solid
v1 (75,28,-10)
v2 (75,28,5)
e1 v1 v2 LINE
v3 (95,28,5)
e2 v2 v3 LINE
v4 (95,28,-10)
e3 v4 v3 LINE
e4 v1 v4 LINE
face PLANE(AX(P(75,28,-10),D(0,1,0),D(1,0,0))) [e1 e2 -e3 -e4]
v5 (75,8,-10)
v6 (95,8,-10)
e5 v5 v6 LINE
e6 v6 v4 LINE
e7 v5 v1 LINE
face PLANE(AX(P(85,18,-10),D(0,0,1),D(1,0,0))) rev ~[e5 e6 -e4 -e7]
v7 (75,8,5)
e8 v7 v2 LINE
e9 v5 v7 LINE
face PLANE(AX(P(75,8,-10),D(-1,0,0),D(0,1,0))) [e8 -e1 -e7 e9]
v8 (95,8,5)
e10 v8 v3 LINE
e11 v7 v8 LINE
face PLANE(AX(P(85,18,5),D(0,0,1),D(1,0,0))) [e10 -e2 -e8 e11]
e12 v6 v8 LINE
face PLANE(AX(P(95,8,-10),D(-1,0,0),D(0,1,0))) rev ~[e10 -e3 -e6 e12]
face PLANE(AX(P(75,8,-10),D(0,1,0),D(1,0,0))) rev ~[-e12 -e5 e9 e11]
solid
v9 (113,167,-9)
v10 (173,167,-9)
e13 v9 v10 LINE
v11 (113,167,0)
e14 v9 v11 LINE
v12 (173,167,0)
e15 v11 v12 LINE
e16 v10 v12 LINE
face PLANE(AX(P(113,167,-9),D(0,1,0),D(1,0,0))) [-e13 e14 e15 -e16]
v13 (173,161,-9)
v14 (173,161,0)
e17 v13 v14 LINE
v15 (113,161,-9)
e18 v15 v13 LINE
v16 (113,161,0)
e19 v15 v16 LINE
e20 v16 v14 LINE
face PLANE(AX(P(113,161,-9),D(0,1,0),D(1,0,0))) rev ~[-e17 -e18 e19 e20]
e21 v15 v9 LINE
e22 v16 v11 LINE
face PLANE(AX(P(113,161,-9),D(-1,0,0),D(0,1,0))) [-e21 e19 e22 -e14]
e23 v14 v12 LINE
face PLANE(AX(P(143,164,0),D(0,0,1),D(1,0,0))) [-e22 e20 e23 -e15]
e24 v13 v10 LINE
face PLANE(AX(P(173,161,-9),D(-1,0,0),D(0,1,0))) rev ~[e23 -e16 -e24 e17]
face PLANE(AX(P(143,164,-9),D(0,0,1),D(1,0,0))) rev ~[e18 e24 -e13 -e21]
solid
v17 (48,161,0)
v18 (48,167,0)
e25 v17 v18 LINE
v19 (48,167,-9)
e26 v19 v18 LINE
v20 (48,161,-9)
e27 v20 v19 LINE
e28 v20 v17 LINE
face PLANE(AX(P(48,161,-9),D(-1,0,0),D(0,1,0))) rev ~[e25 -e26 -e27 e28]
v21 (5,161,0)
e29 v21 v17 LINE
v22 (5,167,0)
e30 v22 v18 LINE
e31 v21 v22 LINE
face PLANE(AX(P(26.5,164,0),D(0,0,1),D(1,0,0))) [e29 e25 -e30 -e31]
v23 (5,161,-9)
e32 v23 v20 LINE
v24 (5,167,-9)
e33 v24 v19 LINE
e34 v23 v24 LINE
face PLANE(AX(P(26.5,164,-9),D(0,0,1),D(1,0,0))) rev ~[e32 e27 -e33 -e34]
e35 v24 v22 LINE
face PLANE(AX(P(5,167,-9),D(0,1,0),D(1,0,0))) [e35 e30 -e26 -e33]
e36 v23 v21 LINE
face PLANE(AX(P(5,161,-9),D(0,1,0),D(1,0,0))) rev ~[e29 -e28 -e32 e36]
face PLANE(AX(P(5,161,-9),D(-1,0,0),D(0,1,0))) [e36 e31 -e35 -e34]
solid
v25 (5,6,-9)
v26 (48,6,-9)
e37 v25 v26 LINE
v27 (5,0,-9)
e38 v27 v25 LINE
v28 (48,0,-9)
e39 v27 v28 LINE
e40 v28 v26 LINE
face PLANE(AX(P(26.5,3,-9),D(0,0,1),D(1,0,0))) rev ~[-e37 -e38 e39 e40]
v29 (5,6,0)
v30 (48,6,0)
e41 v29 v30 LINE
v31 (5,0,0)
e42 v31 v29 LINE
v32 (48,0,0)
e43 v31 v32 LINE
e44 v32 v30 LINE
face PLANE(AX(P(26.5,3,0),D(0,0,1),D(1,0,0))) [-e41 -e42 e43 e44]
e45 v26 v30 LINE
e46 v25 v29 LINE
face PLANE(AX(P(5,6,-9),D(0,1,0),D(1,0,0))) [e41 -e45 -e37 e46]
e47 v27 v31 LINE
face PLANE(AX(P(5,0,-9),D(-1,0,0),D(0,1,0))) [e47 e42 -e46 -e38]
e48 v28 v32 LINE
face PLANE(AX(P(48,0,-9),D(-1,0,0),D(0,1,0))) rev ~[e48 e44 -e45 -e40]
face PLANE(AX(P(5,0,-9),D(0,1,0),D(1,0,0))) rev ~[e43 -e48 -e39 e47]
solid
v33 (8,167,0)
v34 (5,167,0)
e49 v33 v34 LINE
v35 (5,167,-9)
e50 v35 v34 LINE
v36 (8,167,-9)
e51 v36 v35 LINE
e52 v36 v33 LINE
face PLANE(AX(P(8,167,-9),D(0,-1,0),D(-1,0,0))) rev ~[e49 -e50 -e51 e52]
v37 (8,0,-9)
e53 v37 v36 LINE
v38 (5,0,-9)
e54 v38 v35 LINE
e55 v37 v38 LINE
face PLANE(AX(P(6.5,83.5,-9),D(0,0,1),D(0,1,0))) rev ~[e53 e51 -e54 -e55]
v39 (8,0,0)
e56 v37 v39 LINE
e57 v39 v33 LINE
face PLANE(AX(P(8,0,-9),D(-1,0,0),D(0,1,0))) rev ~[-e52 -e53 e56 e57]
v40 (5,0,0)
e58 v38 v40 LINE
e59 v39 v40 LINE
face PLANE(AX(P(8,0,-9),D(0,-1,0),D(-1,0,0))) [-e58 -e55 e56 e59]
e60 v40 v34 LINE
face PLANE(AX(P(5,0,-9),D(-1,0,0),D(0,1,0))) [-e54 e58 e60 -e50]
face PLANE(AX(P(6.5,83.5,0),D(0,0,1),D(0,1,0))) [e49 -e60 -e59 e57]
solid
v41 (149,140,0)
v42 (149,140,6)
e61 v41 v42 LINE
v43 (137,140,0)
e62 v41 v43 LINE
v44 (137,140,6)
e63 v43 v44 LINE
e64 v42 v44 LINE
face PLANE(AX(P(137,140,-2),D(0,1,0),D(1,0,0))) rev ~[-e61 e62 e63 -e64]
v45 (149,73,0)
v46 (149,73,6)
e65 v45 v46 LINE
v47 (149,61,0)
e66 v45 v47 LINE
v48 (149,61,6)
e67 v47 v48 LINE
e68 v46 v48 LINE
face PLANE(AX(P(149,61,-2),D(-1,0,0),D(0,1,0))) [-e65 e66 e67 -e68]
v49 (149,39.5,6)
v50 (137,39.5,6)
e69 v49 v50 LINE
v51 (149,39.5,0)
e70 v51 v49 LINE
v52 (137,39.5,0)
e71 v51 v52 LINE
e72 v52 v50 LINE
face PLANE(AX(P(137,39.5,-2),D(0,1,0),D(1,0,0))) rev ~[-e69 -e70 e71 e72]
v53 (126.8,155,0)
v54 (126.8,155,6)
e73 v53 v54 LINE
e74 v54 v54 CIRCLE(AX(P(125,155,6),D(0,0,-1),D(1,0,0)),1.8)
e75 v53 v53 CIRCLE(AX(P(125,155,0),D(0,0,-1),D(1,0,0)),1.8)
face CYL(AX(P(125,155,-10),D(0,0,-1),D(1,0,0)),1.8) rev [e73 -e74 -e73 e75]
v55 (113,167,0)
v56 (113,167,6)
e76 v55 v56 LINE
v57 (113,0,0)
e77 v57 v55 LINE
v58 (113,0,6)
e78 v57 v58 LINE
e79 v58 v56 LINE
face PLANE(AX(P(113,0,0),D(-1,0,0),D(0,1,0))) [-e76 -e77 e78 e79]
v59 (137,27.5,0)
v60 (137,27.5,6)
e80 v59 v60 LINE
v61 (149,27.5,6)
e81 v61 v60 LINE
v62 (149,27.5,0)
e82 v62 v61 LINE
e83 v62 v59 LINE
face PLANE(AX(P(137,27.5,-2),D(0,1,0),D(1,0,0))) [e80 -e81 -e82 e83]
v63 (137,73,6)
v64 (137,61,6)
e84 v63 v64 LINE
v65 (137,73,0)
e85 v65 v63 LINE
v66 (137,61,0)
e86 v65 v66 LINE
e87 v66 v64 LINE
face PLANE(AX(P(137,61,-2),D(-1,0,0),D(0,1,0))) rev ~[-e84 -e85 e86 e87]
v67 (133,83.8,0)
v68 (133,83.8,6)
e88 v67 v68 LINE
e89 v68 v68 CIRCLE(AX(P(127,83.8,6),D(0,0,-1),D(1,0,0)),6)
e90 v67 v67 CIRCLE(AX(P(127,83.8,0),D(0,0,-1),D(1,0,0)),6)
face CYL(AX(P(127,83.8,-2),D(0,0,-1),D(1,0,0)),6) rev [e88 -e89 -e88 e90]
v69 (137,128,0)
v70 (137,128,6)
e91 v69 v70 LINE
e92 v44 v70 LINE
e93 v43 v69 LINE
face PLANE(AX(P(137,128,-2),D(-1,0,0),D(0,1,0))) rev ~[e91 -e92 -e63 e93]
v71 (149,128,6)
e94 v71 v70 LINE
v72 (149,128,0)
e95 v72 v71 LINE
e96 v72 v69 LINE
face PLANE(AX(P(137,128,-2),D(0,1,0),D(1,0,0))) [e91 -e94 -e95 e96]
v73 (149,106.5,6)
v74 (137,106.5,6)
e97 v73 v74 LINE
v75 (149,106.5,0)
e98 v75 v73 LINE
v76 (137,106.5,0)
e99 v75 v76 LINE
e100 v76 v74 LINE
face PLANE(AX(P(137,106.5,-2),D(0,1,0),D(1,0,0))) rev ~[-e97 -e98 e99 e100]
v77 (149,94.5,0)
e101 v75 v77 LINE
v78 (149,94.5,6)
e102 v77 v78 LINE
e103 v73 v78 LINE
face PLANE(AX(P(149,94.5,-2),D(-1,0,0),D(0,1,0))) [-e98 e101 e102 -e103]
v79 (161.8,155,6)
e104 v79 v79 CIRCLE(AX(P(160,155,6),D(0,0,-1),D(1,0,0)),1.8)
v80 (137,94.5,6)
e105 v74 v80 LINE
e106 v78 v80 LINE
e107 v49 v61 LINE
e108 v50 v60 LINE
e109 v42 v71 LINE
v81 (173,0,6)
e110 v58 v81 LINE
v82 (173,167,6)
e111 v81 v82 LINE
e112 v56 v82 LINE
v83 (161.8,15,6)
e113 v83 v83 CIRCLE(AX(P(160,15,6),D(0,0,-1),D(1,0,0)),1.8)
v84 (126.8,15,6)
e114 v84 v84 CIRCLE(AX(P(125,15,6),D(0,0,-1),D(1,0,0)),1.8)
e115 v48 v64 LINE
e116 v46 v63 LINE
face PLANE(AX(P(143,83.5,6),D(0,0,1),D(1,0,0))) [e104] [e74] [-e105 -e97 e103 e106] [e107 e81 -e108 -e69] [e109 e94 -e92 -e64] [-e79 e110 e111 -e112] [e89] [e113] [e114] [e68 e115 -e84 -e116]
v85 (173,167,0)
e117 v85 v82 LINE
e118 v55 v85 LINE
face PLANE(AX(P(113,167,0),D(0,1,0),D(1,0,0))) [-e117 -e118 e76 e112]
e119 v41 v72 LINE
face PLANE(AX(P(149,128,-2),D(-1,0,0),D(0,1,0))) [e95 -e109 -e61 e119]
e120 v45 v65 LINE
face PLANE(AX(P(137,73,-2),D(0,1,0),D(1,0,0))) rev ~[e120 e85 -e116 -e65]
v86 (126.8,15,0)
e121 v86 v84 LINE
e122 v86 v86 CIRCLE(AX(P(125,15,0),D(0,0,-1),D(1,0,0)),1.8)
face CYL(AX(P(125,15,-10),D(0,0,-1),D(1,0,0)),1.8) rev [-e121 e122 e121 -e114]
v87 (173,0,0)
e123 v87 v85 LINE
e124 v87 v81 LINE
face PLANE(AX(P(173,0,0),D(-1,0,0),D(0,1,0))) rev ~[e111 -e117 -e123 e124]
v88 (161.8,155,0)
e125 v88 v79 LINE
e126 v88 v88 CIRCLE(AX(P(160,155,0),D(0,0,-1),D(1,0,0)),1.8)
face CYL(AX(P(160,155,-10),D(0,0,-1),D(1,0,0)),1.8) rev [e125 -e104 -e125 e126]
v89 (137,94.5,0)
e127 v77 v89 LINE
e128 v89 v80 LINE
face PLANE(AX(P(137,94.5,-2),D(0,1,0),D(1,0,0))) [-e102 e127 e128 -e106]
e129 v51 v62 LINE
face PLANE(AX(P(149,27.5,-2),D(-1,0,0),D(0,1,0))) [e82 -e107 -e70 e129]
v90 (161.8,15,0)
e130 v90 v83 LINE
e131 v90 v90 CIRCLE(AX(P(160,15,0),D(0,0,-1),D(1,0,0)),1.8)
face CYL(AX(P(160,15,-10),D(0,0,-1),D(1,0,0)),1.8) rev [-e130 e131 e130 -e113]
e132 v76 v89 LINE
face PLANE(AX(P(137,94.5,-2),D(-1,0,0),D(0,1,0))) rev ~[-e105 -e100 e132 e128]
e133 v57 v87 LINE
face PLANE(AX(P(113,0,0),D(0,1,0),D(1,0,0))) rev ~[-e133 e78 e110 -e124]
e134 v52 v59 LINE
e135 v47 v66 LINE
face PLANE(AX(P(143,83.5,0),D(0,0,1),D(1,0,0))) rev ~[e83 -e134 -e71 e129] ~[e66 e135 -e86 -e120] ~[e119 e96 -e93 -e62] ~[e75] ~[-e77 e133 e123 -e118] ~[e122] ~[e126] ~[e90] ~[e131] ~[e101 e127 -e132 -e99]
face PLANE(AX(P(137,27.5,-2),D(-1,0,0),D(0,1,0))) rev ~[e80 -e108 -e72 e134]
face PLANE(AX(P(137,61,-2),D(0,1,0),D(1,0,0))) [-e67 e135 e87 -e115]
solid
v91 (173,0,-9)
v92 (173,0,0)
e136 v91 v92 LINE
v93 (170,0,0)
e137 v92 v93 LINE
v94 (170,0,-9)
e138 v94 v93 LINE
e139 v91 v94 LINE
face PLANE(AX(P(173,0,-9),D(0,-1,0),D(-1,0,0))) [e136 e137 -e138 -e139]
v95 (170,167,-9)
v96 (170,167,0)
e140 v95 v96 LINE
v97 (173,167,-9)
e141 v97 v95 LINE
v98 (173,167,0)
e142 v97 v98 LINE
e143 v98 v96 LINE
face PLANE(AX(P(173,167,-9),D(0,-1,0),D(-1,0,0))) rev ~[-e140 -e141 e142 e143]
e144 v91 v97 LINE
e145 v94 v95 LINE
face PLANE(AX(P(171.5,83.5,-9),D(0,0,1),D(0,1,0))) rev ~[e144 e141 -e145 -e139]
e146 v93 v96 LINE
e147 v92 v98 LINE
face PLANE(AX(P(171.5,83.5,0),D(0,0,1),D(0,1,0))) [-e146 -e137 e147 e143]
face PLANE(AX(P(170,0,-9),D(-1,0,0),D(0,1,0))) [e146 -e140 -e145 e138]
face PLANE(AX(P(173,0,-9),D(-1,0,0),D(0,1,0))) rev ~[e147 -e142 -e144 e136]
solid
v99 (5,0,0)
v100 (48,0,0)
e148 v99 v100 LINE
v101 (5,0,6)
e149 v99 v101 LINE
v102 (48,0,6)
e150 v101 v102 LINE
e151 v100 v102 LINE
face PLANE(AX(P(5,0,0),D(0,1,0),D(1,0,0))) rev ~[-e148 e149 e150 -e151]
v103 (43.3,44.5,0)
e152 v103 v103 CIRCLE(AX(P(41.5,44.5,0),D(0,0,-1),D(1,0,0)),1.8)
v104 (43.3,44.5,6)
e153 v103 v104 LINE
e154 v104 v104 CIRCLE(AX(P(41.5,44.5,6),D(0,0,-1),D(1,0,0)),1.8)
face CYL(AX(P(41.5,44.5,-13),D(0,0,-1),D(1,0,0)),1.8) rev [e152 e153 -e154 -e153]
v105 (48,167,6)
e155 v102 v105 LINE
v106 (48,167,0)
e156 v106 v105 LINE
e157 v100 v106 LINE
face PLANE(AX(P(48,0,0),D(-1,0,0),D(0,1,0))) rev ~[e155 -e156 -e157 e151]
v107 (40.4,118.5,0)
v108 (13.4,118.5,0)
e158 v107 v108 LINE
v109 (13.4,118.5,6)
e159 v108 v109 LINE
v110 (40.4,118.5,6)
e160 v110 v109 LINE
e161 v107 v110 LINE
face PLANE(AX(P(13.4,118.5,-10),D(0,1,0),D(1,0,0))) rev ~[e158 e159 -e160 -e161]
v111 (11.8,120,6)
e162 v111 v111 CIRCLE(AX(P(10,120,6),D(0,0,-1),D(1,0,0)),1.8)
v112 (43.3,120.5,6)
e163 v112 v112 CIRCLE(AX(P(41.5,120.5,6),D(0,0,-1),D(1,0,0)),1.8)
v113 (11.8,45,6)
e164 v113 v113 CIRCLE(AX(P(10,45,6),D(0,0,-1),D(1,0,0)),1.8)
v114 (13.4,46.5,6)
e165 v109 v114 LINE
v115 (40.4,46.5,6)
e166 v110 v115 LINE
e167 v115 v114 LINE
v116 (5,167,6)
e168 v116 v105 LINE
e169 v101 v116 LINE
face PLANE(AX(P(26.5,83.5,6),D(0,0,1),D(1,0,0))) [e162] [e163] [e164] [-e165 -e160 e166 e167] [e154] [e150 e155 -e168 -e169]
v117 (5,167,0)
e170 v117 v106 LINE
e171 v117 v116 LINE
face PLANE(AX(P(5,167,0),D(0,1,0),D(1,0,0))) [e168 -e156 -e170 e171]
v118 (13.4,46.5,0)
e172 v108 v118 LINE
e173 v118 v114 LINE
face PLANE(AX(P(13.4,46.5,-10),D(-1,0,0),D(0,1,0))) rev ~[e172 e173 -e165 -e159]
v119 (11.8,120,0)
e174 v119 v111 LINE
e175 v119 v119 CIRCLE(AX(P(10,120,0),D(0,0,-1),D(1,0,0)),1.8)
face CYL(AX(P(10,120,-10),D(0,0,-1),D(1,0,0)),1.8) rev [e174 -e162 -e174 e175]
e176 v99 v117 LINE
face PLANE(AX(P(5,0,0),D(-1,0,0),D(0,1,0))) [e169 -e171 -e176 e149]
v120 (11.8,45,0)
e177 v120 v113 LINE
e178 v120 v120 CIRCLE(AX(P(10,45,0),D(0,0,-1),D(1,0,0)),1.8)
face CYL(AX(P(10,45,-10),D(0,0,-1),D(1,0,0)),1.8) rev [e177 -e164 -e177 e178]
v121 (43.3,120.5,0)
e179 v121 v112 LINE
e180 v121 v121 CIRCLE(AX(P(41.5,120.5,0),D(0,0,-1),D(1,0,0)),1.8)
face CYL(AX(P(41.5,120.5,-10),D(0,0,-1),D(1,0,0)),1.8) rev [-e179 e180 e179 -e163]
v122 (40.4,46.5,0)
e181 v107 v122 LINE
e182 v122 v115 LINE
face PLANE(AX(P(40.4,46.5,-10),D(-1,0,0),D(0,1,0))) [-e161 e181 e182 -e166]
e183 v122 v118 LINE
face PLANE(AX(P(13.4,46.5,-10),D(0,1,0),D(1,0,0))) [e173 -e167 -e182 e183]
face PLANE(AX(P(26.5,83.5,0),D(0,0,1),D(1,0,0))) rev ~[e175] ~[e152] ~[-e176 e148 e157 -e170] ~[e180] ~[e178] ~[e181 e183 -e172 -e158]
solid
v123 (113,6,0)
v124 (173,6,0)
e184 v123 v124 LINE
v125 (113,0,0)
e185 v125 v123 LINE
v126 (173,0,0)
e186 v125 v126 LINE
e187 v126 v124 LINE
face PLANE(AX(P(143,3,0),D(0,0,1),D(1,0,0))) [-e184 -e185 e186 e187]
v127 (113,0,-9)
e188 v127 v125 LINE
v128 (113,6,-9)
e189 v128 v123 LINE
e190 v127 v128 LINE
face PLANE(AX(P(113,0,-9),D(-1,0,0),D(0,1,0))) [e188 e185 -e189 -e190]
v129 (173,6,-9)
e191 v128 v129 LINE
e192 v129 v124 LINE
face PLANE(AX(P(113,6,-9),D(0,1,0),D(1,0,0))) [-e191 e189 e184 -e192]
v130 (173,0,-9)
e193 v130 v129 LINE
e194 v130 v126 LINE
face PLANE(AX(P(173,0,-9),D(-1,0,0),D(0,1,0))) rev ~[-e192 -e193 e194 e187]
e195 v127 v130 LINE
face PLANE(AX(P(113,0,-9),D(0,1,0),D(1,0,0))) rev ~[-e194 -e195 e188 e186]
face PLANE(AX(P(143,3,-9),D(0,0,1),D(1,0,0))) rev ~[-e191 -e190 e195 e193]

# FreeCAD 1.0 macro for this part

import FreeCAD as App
import Part
import Sketcher
Q = App.Units.Quantity

doc = App.newDocument("Part")
body = doc.addObject("PartDesign::Body", "Body")

# Sketch on XY plane
sketch1 = doc.addObject("Sketcher::SketchObject", "Sketch")
body.addObject(sketch1)
sketch1.AttachmentSupport = (doc.XY_Plane, [""])
sketch1.MapMode = "FlatFace"
sketch1.AttachmentOffset = App.Placement(App.Vector(0, 0, -9), App.Rotation())
sketch1.addGeometry([
    Part.LineSegment(App.Vector(5, 6, 0), App.Vector(5, 0, 0)),
    Part.LineSegment(App.Vector(5, 0, 0), App.Vector(48, 0, 0)),
    Part.LineSegment(App.Vector(48, 0, 0), App.Vector(48, 6, 0)),
    Part.LineSegment(App.Vector(48, 6, 0), App.Vector(5, 6, 0)),
], False)
sketch1.addConstraint([
    Sketcher.Constraint("Coincident", 0, 2, 1, 1),
    Sketcher.Constraint("Coincident", 1, 2, 2, 1),
    Sketcher.Constraint("Coincident", 2, 2, 3, 1),
    Sketcher.Constraint("Coincident", 3, 2, 0, 1),
    Sketcher.Constraint("Vertical", 0),
    Sketcher.Constraint("Horizontal", 1),
    Sketcher.Constraint("Vertical", 2),
    Sketcher.Constraint("Horizontal", 3),
    Sketcher.Constraint("PointOnObject", 0, 2, -1),
    Sketcher.Constraint("DistanceX", 1, 1, 1, 2, Q("43 mm")),
    Sketcher.Constraint("DistanceY", 0, 2, 0, 1, Q("6 mm")),
    Sketcher.Constraint("DistanceX", -1, 1, 0, 2, Q("5 mm")),
])
pad1 = doc.addObject("PartDesign::Pad", "Pad")
body.addObject(pad1)
pad1.Profile = sketch1
pad1.Length = 9
body2 = doc.addObject("PartDesign::Body", "Body001")

# Sketch on XY plane
sketch2 = doc.addObject("Sketcher::SketchObject", "Sketch001")
body2.addObject(sketch2)
sketch2.AttachmentSupport = (doc.getObject("XY_Plane001"), [""])
sketch2.MapMode = "FlatFace"
sketch2.AttachmentOffset = App.Placement(App.Vector(0, 0, -9), App.Rotation())
sketch2.addGeometry([
    Part.LineSegment(App.Vector(5, 167, 0), App.Vector(5, 161, 0)),
    Part.LineSegment(App.Vector(5, 161, 0), App.Vector(48, 161, 0)),
    Part.LineSegment(App.Vector(48, 161, 0), App.Vector(48, 167, 0)),
    Part.LineSegment(App.Vector(48, 167, 0), App.Vector(5, 167, 0)),
], False)
sketch2.addConstraint([
    Sketcher.Constraint("Coincident", 0, 2, 1, 1),
    Sketcher.Constraint("Coincident", 1, 2, 2, 1),
    Sketcher.Constraint("Coincident", 2, 2, 3, 1),
    Sketcher.Constraint("Coincident", 3, 2, 0, 1),
    Sketcher.Constraint("Vertical", 0),
    Sketcher.Constraint("Horizontal", 1),
    Sketcher.Constraint("Vertical", 2),
    Sketcher.Constraint("Horizontal", 3),
    Sketcher.Constraint("DistanceX", 1, 1, 1, 2, Q("43 mm")),
    Sketcher.Constraint("DistanceY", 0, 2, 0, 1, Q("6 mm")),
    Sketcher.Constraint("DistanceX", -1, 1, 0, 2, Q("5 mm")),
    Sketcher.Constraint("DistanceY", -1, 1, 0, 2, Q("161 mm")),
])
pad2 = doc.addObject("PartDesign::Pad", "Pad001")
body2.addObject(pad2)
pad2.Profile = sketch2
pad2.Length = 9
body3 = doc.addObject("PartDesign::Body", "Body002")

# Sketch on XY plane
sketch3 = doc.addObject("Sketcher::SketchObject", "Sketch002")
body3.addObject(sketch3)
sketch3.AttachmentSupport = (doc.getObject("XY_Plane002"), [""])
sketch3.MapMode = "FlatFace"
sketch3.AttachmentOffset = App.Placement(App.Vector(0, 0, -9), App.Rotation())
sketch3.addGeometry([
    Part.LineSegment(App.Vector(5, 0, 0), App.Vector(8, 0, 0)),
    Part.LineSegment(App.Vector(8, 0, 0), App.Vector(8, 167, 0)),
    Part.LineSegment(App.Vector(8, 167, 0), App.Vector(5, 167, 0)),
    Part.LineSegment(App.Vector(5, 167, 0), App.Vector(5, 0, 0)),
], False)
sketch3.addConstraint([
    Sketcher.Constraint("Coincident", 0, 2, 1, 1),
    Sketcher.Constraint("Coincident", 1, 2, 2, 1),
    Sketcher.Constraint("Coincident", 2, 2, 3, 1),
    Sketcher.Constraint("Coincident", 3, 2, 0, 1),
    Sketcher.Constraint("Horizontal", 0),
    Sketcher.Constraint("Vertical", 1),
    Sketcher.Constraint("Horizontal", 2),
    Sketcher.Constraint("Vertical", 3),
    Sketcher.Constraint("PointOnObject", 0, 2, -1),
    Sketcher.Constraint("DistanceX", 0, 1, 0, 2, Q("3 mm")),
    Sketcher.Constraint("DistanceY", 1, 1, 1, 2, Q("167 mm")),
    Sketcher.Constraint("DistanceX", -1, 1, 0, 2, Q("8 mm")),
])
pad3 = doc.addObject("PartDesign::Pad", "Pad002")
body3.addObject(pad3)
pad3.Profile = sketch3
pad3.Length = 9
body4 = doc.addObject("PartDesign::Body", "Body003")

# Sketch on XY plane
sketch4 = doc.addObject("Sketcher::SketchObject", "Sketch003")
body4.addObject(sketch4)
sketch4.AttachmentSupport = (doc.getObject("XY_Plane003"), [""])
sketch4.MapMode = "FlatFace"
sketch4.AttachmentOffset = App.Placement(App.Vector(0, 0, -9), App.Rotation())
sketch4.addGeometry([
    Part.LineSegment(App.Vector(113, 6, 0), App.Vector(113, 0, 0)),
    Part.LineSegment(App.Vector(113, 0, 0), App.Vector(173, 0, 0)),
    Part.LineSegment(App.Vector(173, 0, 0), App.Vector(173, 6, 0)),
    Part.LineSegment(App.Vector(173, 6, 0), App.Vector(113, 6, 0)),
], False)
sketch4.addConstraint([
    Sketcher.Constraint("Coincident", 0, 2, 1, 1),
    Sketcher.Constraint("Coincident", 1, 2, 2, 1),
    Sketcher.Constraint("Coincident", 2, 2, 3, 1),
    Sketcher.Constraint("Coincident", 3, 2, 0, 1),
    Sketcher.Constraint("Vertical", 0),
    Sketcher.Constraint("Horizontal", 1),
    Sketcher.Constraint("Vertical", 2),
    Sketcher.Constraint("Horizontal", 3),
    Sketcher.Constraint("PointOnObject", 0, 2, -1),
    Sketcher.Constraint("DistanceX", 1, 1, 1, 2, Q("60 mm")),
    Sketcher.Constraint("DistanceY", 0, 2, 0, 1, Q("6 mm")),
    Sketcher.Constraint("DistanceX", -1, 1, 0, 2, Q("113 mm")),
])
pad4 = doc.addObject("PartDesign::Pad", "Pad003")
body4.addObject(pad4)
pad4.Profile = sketch4
pad4.Length = 9
body5 = doc.addObject("PartDesign::Body", "Body004")

# Sketch on XY plane
sketch5 = doc.addObject("Sketcher::SketchObject", "Sketch004")
body5.addObject(sketch5)
sketch5.AttachmentSupport = (doc.getObject("XY_Plane004"), [""])
sketch5.MapMode = "FlatFace"
sketch5.AttachmentOffset = App.Placement(App.Vector(0, 0, -9), App.Rotation())
sketch5.addGeometry([
    Part.LineSegment(App.Vector(113, 167, 0), App.Vector(113, 161, 0)),
    Part.LineSegment(App.Vector(113, 161, 0), App.Vector(173, 161, 0)),
    Part.LineSegment(App.Vector(173, 161, 0), App.Vector(173, 167, 0)),
    Part.LineSegment(App.Vector(173, 167, 0), App.Vector(113, 167, 0)),
], False)
sketch5.addConstraint([
    Sketcher.Constraint("Coincident", 0, 2, 1, 1),
    Sketcher.Constraint("Coincident", 1, 2, 2, 1),
    Sketcher.Constraint("Coincident", 2, 2, 3, 1),
    Sketcher.Constraint("Coincident", 3, 2, 0, 1),
    Sketcher.Constraint("Vertical", 0),
    Sketcher.Constraint("Horizontal", 1),
    Sketcher.Constraint("Vertical", 2),
    Sketcher.Constraint("Horizontal", 3),
    Sketcher.Constraint("DistanceX", 1, 1, 1, 2, Q("60 mm")),
    Sketcher.Constraint("DistanceY", 0, 2, 0, 1, Q("6 mm")),
    Sketcher.Constraint("DistanceX", -1, 1, 0, 2, Q("113 mm")),
    Sketcher.Constraint("DistanceY", -1, 1, 0, 2, Q("161 mm")),
])
pad5 = doc.addObject("PartDesign::Pad", "Pad004")
body5.addObject(pad5)
pad5.Profile = sketch5
pad5.Length = 9
body6 = doc.addObject("PartDesign::Body", "Body005")

# Sketch on XY plane
sketch6 = doc.addObject("Sketcher::SketchObject", "Sketch005")
body6.addObject(sketch6)
sketch6.AttachmentSupport = (doc.getObject("XY_Plane005"), [""])
sketch6.MapMode = "FlatFace"
sketch6.AttachmentOffset = App.Placement(App.Vector(0, 0, -9), App.Rotation())
sketch6.addGeometry([
    Part.LineSegment(App.Vector(170, 0, 0), App.Vector(173, 0, 0)),
    Part.LineSegment(App.Vector(173, 0, 0), App.Vector(173, 167, 0)),
    Part.LineSegment(App.Vector(173, 167, 0), App.Vector(170, 167, 0)),
    Part.LineSegment(App.Vector(170, 167, 0), App.Vector(170, 0, 0)),
], False)
sketch6.addConstraint([
    Sketcher.Constraint("Coincident", 0, 2, 1, 1),
    Sketcher.Constraint("Coincident", 1, 2, 2, 1),
    Sketcher.Constraint("Coincident", 2, 2, 3, 1),
    Sketcher.Constraint("Coincident", 3, 2, 0, 1),
    Sketcher.Constraint("Horizontal", 0),
    Sketcher.Constraint("Vertical", 1),
    Sketcher.Constraint("Horizontal", 2),
    Sketcher.Constraint("Vertical", 3),
    Sketcher.Constraint("PointOnObject", 0, 2, -1),
    Sketcher.Constraint("DistanceX", 0, 1, 0, 2, Q("3 mm")),
    Sketcher.Constraint("DistanceY", 1, 1, 1, 2, Q("167 mm")),
    Sketcher.Constraint("DistanceX", -1, 1, 0, 2, Q("173 mm")),
])
pad6 = doc.addObject("PartDesign::Pad", "Pad005")
body6.addObject(pad6)
pad6.Profile = sketch6
pad6.Length = 9
body7 = doc.addObject("PartDesign::Body", "Body006")

# Sketch on XY plane
sketch7 = doc.addObject("Sketcher::SketchObject", "Sketch006")
body7.addObject(sketch7)
sketch7.AttachmentSupport = (doc.getObject("XY_Plane006"), [""])
sketch7.MapMode = "FlatFace"
sketch7.AttachmentOffset = App.Placement(App.Vector(0, 0, -13), App.Rotation())
sketch7.addGeometry(Part.Circle(App.Vector(41.5, 44.5, 0), App.Vector(0, 0, 1), 1.8), False)
sketch7.addConstraint([
    Sketcher.Constraint("Diameter", 0, Q("3.6 mm")),
    Sketcher.Constraint("DistanceX", -1, 1, 0, 3, Q("41.5 mm")),
    Sketcher.Constraint("DistanceY", -1, 1, 0, 3, Q("44.5 mm")),
])
pad7 = doc.addObject("PartDesign::Pad", "Pad006")
body7.addObject(pad7)
pad7.Profile = sketch7
pad7.Length = 21
body8 = doc.addObject("PartDesign::Body", "Body007")

# Sketch on XY plane
sketch8 = doc.addObject("Sketcher::SketchObject", "Sketch007")
body8.addObject(sketch8)
sketch8.AttachmentSupport = (doc.getObject("XY_Plane007"), [""])
sketch8.MapMode = "FlatFace"
sketch8.AttachmentOffset = App.Placement(App.Vector(0, 0, -10), App.Rotation())
sketch8.addGeometry(Part.Circle(App.Vector(41.5, 120.5, 0), App.Vector(0, 0, 1), 1.8), False)
sketch8.addConstraint([
    Sketcher.Constraint("Diameter", 0, Q("3.6 mm")),
    Sketcher.Constraint("DistanceX", -1, 1, 0, 3, Q("41.5 mm")),
    Sketcher.Constraint("DistanceY", -1, 1, 0, 3, Q("120.5 mm")),
])
pad8 = doc.addObject("PartDesign::Pad", "Pad007")
body8.addObject(pad8)
pad8.Profile = sketch8
pad8.Length = 20
body9 = doc.addObject("PartDesign::Body", "Body008")

# Sketch on XY plane
sketch9 = doc.addObject("Sketcher::SketchObject", "Sketch008")
body9.addObject(sketch9)
sketch9.AttachmentSupport = (doc.getObject("XY_Plane008"), [""])
sketch9.MapMode = "FlatFace"
sketch9.AttachmentOffset = App.Placement(App.Vector(0, 0, -10), App.Rotation())
sketch9.addGeometry(Part.Circle(App.Vector(10, 120, 0), App.Vector(0, 0, 1), 1.8), False)
sketch9.addConstraint([
    Sketcher.Constraint("Diameter", 0, Q("3.6 mm")),
    Sketcher.Constraint("DistanceX", -1, 1, 0, 3, Q("10 mm")),
    Sketcher.Constraint("DistanceY", -1, 1, 0, 3, Q("120 mm")),
])
pad9 = doc.addObject("PartDesign::Pad", "Pad008")
body9.addObject(pad9)
pad9.Profile = sketch9
pad9.Length = 20
body10 = doc.addObject("PartDesign::Body", "Body009")

# Sketch on XY plane
sketch10 = doc.addObject("Sketcher::SketchObject", "Sketch009")
body10.addObject(sketch10)
sketch10.AttachmentSupport = (doc.getObject("XY_Plane009"), [""])
sketch10.MapMode = "FlatFace"
sketch10.AttachmentOffset = App.Placement(App.Vector(0, 0, -10), App.Rotation())
sketch10.addGeometry(Part.Circle(App.Vector(10, 45, 0), App.Vector(0, 0, 1), 1.8), False)
sketch10.addConstraint([
    Sketcher.Constraint("Diameter", 0, Q("3.6 mm")),
    Sketcher.Constraint("DistanceX", -1, 1, 0, 3, Q("10 mm")),
    Sketcher.Constraint("DistanceY", -1, 1, 0, 3, Q("45 mm")),
])
pad10 = doc.addObject("PartDesign::Pad", "Pad009")
body10.addObject(pad10)
pad10.Profile = sketch10
pad10.Length = 20
body11 = doc.addObject("PartDesign::Body", "Body010")

# Sketch on XY plane
sketch11 = doc.addObject("Sketcher::SketchObject", "Sketch010")
body11.addObject(sketch11)
sketch11.AttachmentSupport = (doc.getObject("XY_Plane010"), [""])
sketch11.MapMode = "FlatFace"
sketch11.AttachmentOffset = App.Placement(App.Vector(0, 0, -10), App.Rotation())
sketch11.addGeometry([
    Part.LineSegment(App.Vector(13, 118, 0), App.Vector(13, 46, 0)),
    Part.LineSegment(App.Vector(13, 46, 0), App.Vector(40, 46, 0)),
    Part.LineSegment(App.Vector(40, 46, 0), App.Vector(40, 118, 0)),
    Part.LineSegment(App.Vector(40, 118, 0), App.Vector(13, 118, 0)),
], False)
sketch11.addConstraint([
    Sketcher.Constraint("Coincident", 0, 2, 1, 1),
    Sketcher.Constraint("Coincident", 1, 2, 2, 1),
    Sketcher.Constraint("Coincident", 2, 2, 3, 1),
    Sketcher.Constraint("Coincident", 3, 2, 0, 1),
    Sketcher.Constraint("Vertical", 0),
    Sketcher.Constraint("Horizontal", 1),
    Sketcher.Constraint("Vertical", 2),
    Sketcher.Constraint("Horizontal", 3),
    Sketcher.Constraint("DistanceX", 1, 1, 1, 2, Q("27 mm")),
    Sketcher.Constraint("DistanceY", 0, 2, 0, 1, Q("72 mm")),
    Sketcher.Constraint("DistanceX", -1, 1, 0, 2, Q("13.4 mm")),
    Sketcher.Constraint("DistanceY", -1, 1, 0, 2, Q("46.5 mm")),
])
pad11 = doc.addObject("PartDesign::Pad", "Pad010")
body11.addObject(pad11)
pad11.Profile = sketch11
pad11.Length = 18
body12 = doc.addObject("PartDesign::Body", "Body011")

# Sketch on XY plane
sketch12 = doc.addObject("Sketcher::SketchObject", "Sketch011")
body12.addObject(sketch12)
sketch12.AttachmentSupport = (doc.getObject("XY_Plane011"), [""])
sketch12.MapMode = "FlatFace"
sketch12.addGeometry([
    Part.LineSegment(App.Vector(5, 167, 0), App.Vector(5, 0, 0)),
    Part.LineSegment(App.Vector(5, 0, 0), App.Vector(48, 0, 0)),
    Part.LineSegment(App.Vector(48, 0, 0), App.Vector(48, 167, 0)),
    Part.LineSegment(App.Vector(48, 167, 0), App.Vector(5, 167, 0)),
], False)
sketch12.addConstraint([
    Sketcher.Constraint("Coincident", 0, 2, 1, 1),
    Sketcher.Constraint("Coincident", 1, 2, 2, 1),
    Sketcher.Constraint("Coincident", 2, 2, 3, 1),
    Sketcher.Constraint("Coincident", 3, 2, 0, 1),
    Sketcher.Constraint("Vertical", 0),
    Sketcher.Constraint("Horizontal", 1),
    Sketcher.Constraint("Vertical", 2),
    Sketcher.Constraint("Horizontal", 3),
    Sketcher.Constraint("PointOnObject", 0, 2, -1),
    Sketcher.Constraint("DistanceX", 1, 1, 1, 2, Q("43 mm")),
    Sketcher.Constraint("DistanceY", 0, 2, 0, 1, Q("167 mm")),
    Sketcher.Constraint("DistanceX", -1, 1, 0, 2, Q("5 mm")),
])
pad12 = doc.addObject("PartDesign::Pad", "Pad011")
body12.addObject(pad12)
pad12.Profile = sketch12
pad12.Length = 6
doc.recompute()

boolean = doc.addObject("PartDesign::Boolean", "Boolean")
body12.addObject(boolean)
boolean.Type = "Cut"
boolean.addObjects([body11])
doc.recompute()

boolean2 = doc.addObject("PartDesign::Boolean", "Boolean001")
body12.addObject(boolean2)
boolean2.Type = "Cut"
boolean2.addObjects([body10])
doc.recompute()

boolean3 = doc.addObject("PartDesign::Boolean", "Boolean002")
body12.addObject(boolean3)
boolean3.Type = "Cut"
boolean3.addObjects([body9])
doc.recompute()

boolean4 = doc.addObject("PartDesign::Boolean", "Boolean003")
body12.addObject(boolean4)
boolean4.Type = "Cut"
boolean4.addObjects([body8])
doc.recompute()

boolean5 = doc.addObject("PartDesign::Boolean", "Boolean004")
body12.addObject(boolean5)
boolean5.Type = "Cut"
boolean5.addObjects([body7])
body13 = doc.addObject("PartDesign::Body", "Body012")

# Sketch on XY plane
sketch13 = doc.addObject("Sketcher::SketchObject", "Sketch012")
body13.addObject(sketch13)
sketch13.AttachmentSupport = (doc.getObject("XY_Plane012"), [""])
sketch13.MapMode = "FlatFace"
sketch13.AttachmentOffset = App.Placement(App.Vector(0, 0, -10), App.Rotation())
sketch13.addGeometry(Part.Circle(App.Vector(160, 15, 0), App.Vector(0, 0, 1), 1.8), False)
sketch13.addConstraint([
    Sketcher.Constraint("Diameter", 0, Q("3.6 mm")),
    Sketcher.Constraint("DistanceX", -1, 1, 0, 3, Q("160 mm")),
    Sketcher.Constraint("DistanceY", -1, 1, 0, 3, Q("15 mm")),
])
pad13 = doc.addObject("PartDesign::Pad", "Pad012")
body13.addObject(pad13)
pad13.Profile = sketch13
pad13.Length = 20
body14 = doc.addObject("PartDesign::Body", "Body013")

# Sketch on XY plane
sketch14 = doc.addObject("Sketcher::SketchObject", "Sketch013")
body14.addObject(sketch14)
sketch14.AttachmentSupport = (doc.getObject("XY_Plane013"), [""])
sketch14.MapMode = "FlatFace"
sketch14.AttachmentOffset = App.Placement(App.Vector(0, 0, -10), App.Rotation())
sketch14.addGeometry(Part.Circle(App.Vector(160, 155, 0), App.Vector(0, 0, 1), 1.8), False)
sketch14.addConstraint([
    Sketcher.Constraint("Diameter", 0, Q("3.6 mm")),
    Sketcher.Constraint("DistanceX", -1, 1, 0, 3, Q("160 mm")),
    Sketcher.Constraint("DistanceY", -1, 1, 0, 3, Q("155 mm")),
])
pad14 = doc.addObject("PartDesign::Pad", "Pad013")
body14.addObject(pad14)
pad14.Profile = sketch14
pad14.Length = 20
body15 = doc.addObject("PartDesign::Body", "Body014")

# Sketch on XY plane
sketch15 = doc.addObject("Sketcher::SketchObject", "Sketch014")
body15.addObject(sketch15)
sketch15.AttachmentSupport = (doc.getObject("XY_Plane014"), [""])
sketch15.MapMode = "FlatFace"
sketch15.AttachmentOffset = App.Placement(App.Vector(0, 0, -10), App.Rotation())
sketch15.addGeometry(Part.Circle(App.Vector(125, 155, 0), App.Vector(0, 0, 1), 1.8), False)
sketch15.addConstraint([
    Sketcher.Constraint("Diameter", 0, Q("3.6 mm")),
    Sketcher.Constraint("DistanceX", -1, 1, 0, 3, Q("125 mm")),
    Sketcher.Constraint("DistanceY", -1, 1, 0, 3, Q("155 mm")),
])
pad15 = doc.addObject("PartDesign::Pad", "Pad014")
body15.addObject(pad15)
pad15.Profile = sketch15
pad15.Length = 20
body16 = doc.addObject("PartDesign::Body", "Body015")

# Sketch on XY plane
sketch16 = doc.addObject("Sketcher::SketchObject", "Sketch015")
body16.addObject(sketch16)
sketch16.AttachmentSupport = (doc.getObject("XY_Plane015"), [""])
sketch16.MapMode = "FlatFace"
sketch16.AttachmentOffset = App.Placement(App.Vector(0, 0, -2), App.Rotation())
sketch16.addGeometry([
    Part.LineSegment(App.Vector(137, 106, 0), App.Vector(137, 94, 0)),
    Part.LineSegment(App.Vector(137, 94, 0), App.Vector(149, 94, 0)),
    Part.LineSegment(App.Vector(149, 94, 0), App.Vector(149, 106, 0)),
    Part.LineSegment(App.Vector(149, 106, 0), App.Vector(137, 106, 0)),
], False)
sketch16.addConstraint([
    Sketcher.Constraint("Coincident", 0, 2, 1, 1),
    Sketcher.Constraint("Coincident", 1, 2, 2, 1),
    Sketcher.Constraint("Coincident", 2, 2, 3, 1),
    Sketcher.Constraint("Coincident", 3, 2, 0, 1),
    Sketcher.Constraint("Vertical", 0),
    Sketcher.Constraint("Horizontal", 1),
    Sketcher.Constraint("Vertical", 2),
    Sketcher.Constraint("Horizontal", 3),
    Sketcher.Constraint("Equal", 3, 0),
    Sketcher.Constraint("DistanceX", 1, 1, 1, 2, Q("12 mm")),
    Sketcher.Constraint("DistanceX", -1, 1, 0, 2, Q("137 mm")),
    Sketcher.Constraint("DistanceY", -1, 1, 0, 2, Q("94.5 mm")),
])
pad16 = doc.addObject("PartDesign::Pad", "Pad015")
body16.addObject(pad16)
pad16.Profile = sketch16
pad16.Length = 10
body17 = doc.addObject("PartDesign::Body", "Body016")

# Sketch on XY plane
sketch17 = doc.addObject("Sketcher::SketchObject", "Sketch016")
body17.addObject(sketch17)
sketch17.AttachmentSupport = (doc.getObject("XY_Plane016"), [""])
sketch17.MapMode = "FlatFace"
sketch17.AttachmentOffset = App.Placement(App.Vector(0, 0, -2), App.Rotation())
sketch17.addGeometry([
    Part.LineSegment(App.Vector(137, 40, 0), App.Vector(137, 28, 0)),
    Part.LineSegment(App.Vector(137, 28, 0), App.Vector(149, 28, 0)),
    Part.LineSegment(App.Vector(149, 28, 0), App.Vector(149, 40, 0)),
    Part.LineSegment(App.Vector(149, 40, 0), App.Vector(137, 40, 0)),
], False)
sketch17.addConstraint([
    Sketcher.Constraint("Coincident", 0, 2, 1, 1),
    Sketcher.Constraint("Coincident", 1, 2, 2, 1),
    Sketcher.Constraint("Coincident", 2, 2, 3, 1),
    Sketcher.Constraint("Coincident", 3, 2, 0, 1),
    Sketcher.Constraint("Vertical", 0),
    Sketcher.Constraint("Horizontal", 1),
    Sketcher.Constraint("Vertical", 2),
    Sketcher.Constraint("Horizontal", 3),
    Sketcher.Constraint("Equal", 3, 0),
    Sketcher.Constraint("DistanceX", 1, 1, 1, 2, Q("12 mm")),
    Sketcher.Constraint("DistanceX", -1, 1, 0, 2, Q("137 mm")),
    Sketcher.Constraint("DistanceY", -1, 1, 0, 2, Q("27.5 mm")),
])
pad17 = doc.addObject("PartDesign::Pad", "Pad016")
body17.addObject(pad17)
pad17.Profile = sketch17
pad17.Length = 10
body18 = doc.addObject("PartDesign::Body", "Body017")

# Sketch on XY plane
sketch18 = doc.addObject("Sketcher::SketchObject", "Sketch017")
body18.addObject(sketch18)
sketch18.AttachmentSupport = (doc.getObject("XY_Plane017"), [""])
sketch18.MapMode = "FlatFace"
sketch18.AttachmentOffset = App.Placement(App.Vector(0, 0, -2), App.Rotation())
sketch18.addGeometry([
    Part.LineSegment(App.Vector(137, 140, 0), App.Vector(137, 128, 0)),
    Part.LineSegment(App.Vector(137, 128, 0), App.Vector(149, 128, 0)),
    Part.LineSegment(App.Vector(149, 128, 0), App.Vector(149, 140, 0)),
    Part.LineSegment(App.Vector(149, 140, 0), App.Vector(137, 140, 0)),
], False)
sketch18.addConstraint([
    Sketcher.Constraint("Coincident", 0, 2, 1, 1),
    Sketcher.Constraint("Coincident", 1, 2, 2, 1),
    Sketcher.Constraint("Coincident", 2, 2, 3, 1),
    Sketcher.Constraint("Coincident", 3, 2, 0, 1),
    Sketcher.Constraint("Vertical", 0),
    Sketcher.Constraint("Horizontal", 1),
    Sketcher.Constraint("Vertical", 2),
    Sketcher.Constraint("Horizontal", 3),
    Sketcher.Constraint("Equal", 3, 0),
    Sketcher.Constraint("DistanceX", 1, 1, 1, 2, Q("12 mm")),
    Sketcher.Constraint("DistanceX", -1, 1, 0, 2, Q("137 mm")),
    Sketcher.Constraint("DistanceY", -1, 1, 0, 2, Q("128 mm")),
])
pad18 = doc.addObject("PartDesign::Pad", "Pad017")
body18.addObject(pad18)
pad18.Profile = sketch18
pad18.Length = 10
body19 = doc.addObject("PartDesign::Body", "Body018")

# Sketch on XY plane
sketch19 = doc.addObject("Sketcher::SketchObject", "Sketch018")
body19.addObject(sketch19)
sketch19.AttachmentSupport = (doc.getObject("XY_Plane018"), [""])
sketch19.MapMode = "FlatFace"
sketch19.AttachmentOffset = App.Placement(App.Vector(0, 0, -2), App.Rotation())
sketch19.addGeometry([
    Part.LineSegment(App.Vector(137, 73, 0), App.Vector(137, 61, 0)),
    Part.LineSegment(App.Vector(137, 61, 0), App.Vector(149, 61, 0)),
    Part.LineSegment(App.Vector(149, 61, 0), App.Vector(149, 73, 0)),
    Part.LineSegment(App.Vector(149, 73, 0), App.Vector(137, 73, 0)),
], False)
sketch19.addConstraint([
    Sketcher.Constraint("Coincident", 0, 2, 1, 1),
    Sketcher.Constraint("Coincident", 1, 2, 2, 1),
    Sketcher.Constraint("Coincident", 2, 2, 3, 1),
    Sketcher.Constraint("Coincident", 3, 2, 0, 1),
    Sketcher.Constraint("Vertical", 0),
    Sketcher.Constraint("Horizontal", 1),
    Sketcher.Constraint("Vertical", 2),
    Sketcher.Constraint("Horizontal", 3),
    Sketcher.Constraint("Equal", 3, 0),
    Sketcher.Constraint("DistanceX", 1, 1, 1, 2, Q("12 mm")),
    Sketcher.Constraint("DistanceX", -1, 1, 0, 2, Q("137 mm")),
    Sketcher.Constraint("DistanceY", -1, 1, 0, 2, Q("61 mm")),
])
pad19 = doc.addObject("PartDesign::Pad", "Pad018")
body19.addObject(pad19)
pad19.Profile = sketch19
pad19.Length = 10
body20 = doc.addObject("PartDesign::Body", "Body019")

# Sketch on XY plane
sketch20 = doc.addObject("Sketcher::SketchObject", "Sketch019")
body20.addObject(sketch20)
sketch20.AttachmentSupport = (doc.getObject("XY_Plane019"), [""])
sketch20.MapMode = "FlatFace"
sketch20.AttachmentOffset = App.Placement(App.Vector(0, 0, -2), App.Rotation())
sketch20.addGeometry(Part.Circle(App.Vector(127, 84, 0), App.Vector(0, 0, 1), 6), False)
sketch20.addConstraint([
    Sketcher.Constraint("Diameter", 0, Q("12 mm")),
    Sketcher.Constraint("DistanceX", -1, 1, 0, 3, Q("127 mm")),
    Sketcher.Constraint("DistanceY", -1, 1, 0, 3, Q("83.8 mm")),
])
pad20 = doc.addObject("PartDesign::Pad", "Pad019")
body20.addObject(pad20)
pad20.Profile = sketch20
pad20.Length = 10
body21 = doc.addObject("PartDesign::Body", "Body020")

# Sketch on XY plane
sketch21 = doc.addObject("Sketcher::SketchObject", "Sketch020")
body21.addObject(sketch21)
sketch21.AttachmentSupport = (doc.getObject("XY_Plane020"), [""])
sketch21.MapMode = "FlatFace"
sketch21.AttachmentOffset = App.Placement(App.Vector(0, 0, -10), App.Rotation())
sketch21.addGeometry(Part.Circle(App.Vector(125, 15, 0), App.Vector(0, 0, 1), 1.8), False)
sketch21.addConstraint([
    Sketcher.Constraint("Diameter", 0, Q("3.6 mm")),
    Sketcher.Constraint("DistanceX", -1, 1, 0, 3, Q("125 mm")),
    Sketcher.Constraint("DistanceY", -1, 1, 0, 3, Q("15 mm")),
])
pad21 = doc.addObject("PartDesign::Pad", "Pad020")
body21.addObject(pad21)
pad21.Profile = sketch21
pad21.Length = 20
body22 = doc.addObject("PartDesign::Body", "Body021")

# Sketch on XY plane
sketch22 = doc.addObject("Sketcher::SketchObject", "Sketch021")
body22.addObject(sketch22)
sketch22.AttachmentSupport = (doc.getObject("XY_Plane021"), [""])
sketch22.MapMode = "FlatFace"
sketch22.addGeometry([
    Part.LineSegment(App.Vector(113, 167, 0), App.Vector(113, 0, 0)),
    Part.LineSegment(App.Vector(113, 0, 0), App.Vector(173, 0, 0)),
    Part.LineSegment(App.Vector(173, 0, 0), App.Vector(173, 167, 0)),
    Part.LineSegment(App.Vector(173, 167, 0), App.Vector(113, 167, 0)),
], False)
sketch22.addConstraint([
    Sketcher.Constraint("Coincident", 0, 2, 1, 1),
    Sketcher.Constraint("Coincident", 1, 2, 2, 1),
    Sketcher.Constraint("Coincident", 2, 2, 3, 1),
    Sketcher.Constraint("Coincident", 3, 2, 0, 1),
    Sketcher.Constraint("Vertical", 0),
    Sketcher.Constraint("Horizontal", 1),
    Sketcher.Constraint("Vertical", 2),
    Sketcher.Constraint("Horizontal", 3),
    Sketcher.Constraint("PointOnObject", 0, 2, -1),
    Sketcher.Constraint("DistanceX", 1, 1, 1, 2, Q("60 mm")),
    Sketcher.Constraint("DistanceY", 0, 2, 0, 1, Q("167 mm")),
    Sketcher.Constraint("DistanceX", -1, 1, 0, 2, Q("113 mm")),
])
pad22 = doc.addObject("PartDesign::Pad", "Pad021")
body22.addObject(pad22)
pad22.Profile = sketch22
pad22.Length = 6
doc.recompute()

boolean6 = doc.addObject("PartDesign::Boolean", "Boolean005")
body22.addObject(boolean6)
boolean6.Type = "Cut"
boolean6.addObjects([body21])
doc.recompute()

boolean7 = doc.addObject("PartDesign::Boolean", "Boolean006")
body22.addObject(boolean7)
boolean7.Type = "Cut"
boolean7.addObjects([body20])
doc.recompute()

boolean8 = doc.addObject("PartDesign::Boolean", "Boolean007")
body22.addObject(boolean8)
boolean8.Type = "Cut"
boolean8.addObjects([body19])
doc.recompute()

boolean9 = doc.addObject("PartDesign::Boolean", "Boolean008")
body22.addObject(boolean9)
boolean9.Type = "Cut"
boolean9.addObjects([body18])
doc.recompute()

boolean10 = doc.addObject("PartDesign::Boolean", "Boolean009")
body22.addObject(boolean10)
boolean10.Type = "Cut"
boolean10.addObjects([body17])
doc.recompute()

boolean11 = doc.addObject("PartDesign::Boolean", "Boolean010")
body22.addObject(boolean11)
boolean11.Type = "Cut"
boolean11.addObjects([body16])
doc.recompute()

boolean12 = doc.addObject("PartDesign::Boolean", "Boolean011")
body22.addObject(boolean12)
boolean12.Type = "Cut"
boolean12.addObjects([body15])
doc.recompute()

boolean13 = doc.addObject("PartDesign::Boolean", "Boolean012")
body22.addObject(boolean13)
boolean13.Type = "Cut"
boolean13.addObjects([body14])
doc.recompute()

boolean14 = doc.addObject("PartDesign::Boolean", "Boolean013")
body22.addObject(boolean14)
boolean14.Type = "Cut"
boolean14.addObjects([body13])
body23 = doc.addObject("PartDesign::Body", "Body022")

# Sketch on XY plane
sketch23 = doc.addObject("Sketcher::SketchObject", "Sketch022")
body23.addObject(sketch23)
sketch23.AttachmentSupport = (doc.getObject("XY_Plane022"), [""])
sketch23.MapMode = "FlatFace"
sketch23.AttachmentOffset = App.Placement(App.Vector(0, 0, -10), App.Rotation())
sketch23.addGeometry([
    Part.LineSegment(App.Vector(75, 28, 0), App.Vector(75, 8, 0)),
    Part.LineSegment(App.Vector(75, 8, 0), App.Vector(95, 8, 0)),
    Part.LineSegment(App.Vector(95, 8, 0), App.Vector(95, 28, 0)),
    Part.LineSegment(App.Vector(95, 28, 0), App.Vector(75, 28, 0)),
], False)
sketch23.addConstraint([
    Sketcher.Constraint("Coincident", 0, 2, 1, 1),
    Sketcher.Constraint("Coincident", 1, 2, 2, 1),
    Sketcher.Constraint("Coincident", 2, 2, 3, 1),
    Sketcher.Constraint("Coincident", 3, 2, 0, 1),
    Sketcher.Constraint("Vertical", 0),
    Sketcher.Constraint("Horizontal", 1),
    Sketcher.Constraint("Vertical", 2),
    Sketcher.Constraint("Horizontal", 3),
    Sketcher.Constraint("Equal", 3, 0),
    Sketcher.Constraint("DistanceX", 1, 1, 1, 2, Q("20 mm")),
    Sketcher.Constraint("DistanceX", -1, 1, 0, 2, Q("75 mm")),
    Sketcher.Constraint("DistanceY", -1, 1, 0, 2, Q("8 mm")),
])
pad23 = doc.addObject("PartDesign::Pad", "Pad022")
body23.addObject(pad23)
pad23.Profile = sketch23
pad23.Length = 15

doc.recompute()
